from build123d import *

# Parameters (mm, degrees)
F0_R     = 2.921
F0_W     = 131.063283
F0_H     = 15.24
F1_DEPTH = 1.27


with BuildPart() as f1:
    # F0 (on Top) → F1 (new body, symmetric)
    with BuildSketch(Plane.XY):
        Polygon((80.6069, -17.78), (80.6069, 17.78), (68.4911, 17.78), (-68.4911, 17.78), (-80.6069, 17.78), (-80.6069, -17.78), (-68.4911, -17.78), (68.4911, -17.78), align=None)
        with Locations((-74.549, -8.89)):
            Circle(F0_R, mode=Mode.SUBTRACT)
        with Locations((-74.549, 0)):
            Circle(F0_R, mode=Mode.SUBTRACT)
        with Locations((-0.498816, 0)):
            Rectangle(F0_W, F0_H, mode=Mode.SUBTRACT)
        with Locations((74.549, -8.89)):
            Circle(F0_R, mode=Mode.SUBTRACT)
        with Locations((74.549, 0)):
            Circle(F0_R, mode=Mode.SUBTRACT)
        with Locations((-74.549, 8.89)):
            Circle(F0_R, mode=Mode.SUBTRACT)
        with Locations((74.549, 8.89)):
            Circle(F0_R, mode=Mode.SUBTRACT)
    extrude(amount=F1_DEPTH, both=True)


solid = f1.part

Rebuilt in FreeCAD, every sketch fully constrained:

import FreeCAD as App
import Part
import Sketcher

V = App.Vector
Q = App.Units.Quantity


def add_polygon(sketch, points):
    """Adds a closed chain of lines whose ends are joined by coincident constraints."""
    first, n = sketch.GeometryCount, len(points)
    for a, b in zip(points, points[1:] + points[:1]):
        sketch.addGeometry(Part.LineSegment(App.Vector(*a, 0), App.Vector(*b, 0)), False)
    for i in range(n):
        sketch.addConstraint(Sketcher.Constraint("Coincident", first + i, 2, first + (i + 1) % n, 1))

doc = App.newDocument("Part")
body = doc.addObject("PartDesign::Body", "Body")

sketch1 = body.newObject("Sketcher::SketchObject", "Sketch")
sketch1.AttachmentSupport = (doc.getObject("XY_Plane"), [""])
sketch1.MapMode = "FlatFace"
add_polygon(sketch1, [(80.6, -17.8), (80.6, 17.8), (-80.6, 17.8), (-80.6, -17.8)])
sketch1.addGeometry(Part.Circle(V(-74.5, -8.9, 0), V(0, 0, 1), 2.9), False)
sketch1.addGeometry(Part.Circle(V(74.5, -8.9, 0), V(0, 0, 1), 2.9), False)
sketch1.addGeometry(Part.Circle(V(-74.5, 0, 0), V(0, 0, 1), 2.9), False)
add_polygon(sketch1, [(65, -7.6), (-66, -7.6), (-66, 7.6), (65, 7.6)])
sketch1.addGeometry(Part.Circle(V(-74.5, 8.9, 0), V(0, 0, 1), 2.9), False)
sketch1.addGeometry(Part.Circle(V(74.5, 0, 0), V(0, 0, 1), 2.9), False)
sketch1.addGeometry(Part.Circle(V(74.5, 8.9, 0), V(0, 0, 1), 2.9), False)
sketch1.addConstraint([
    Sketcher.Constraint("Vertical", 0),
    Sketcher.Constraint("Horizontal", 1),
    Sketcher.Constraint("Vertical", 2),
    Sketcher.Constraint("Horizontal", 3),
    Sketcher.Constraint("Horizontal", 7),
    Sketcher.Constraint("Vertical", 8),
    Sketcher.Constraint("Horizontal", 9),
    Sketcher.Constraint("Vertical", 10),
    Sketcher.Constraint("Equal", 4, 5),
    Sketcher.Constraint("Equal", 5, 6),
    Sketcher.Constraint("Equal", 6, 11),
    Sketcher.Constraint("Equal", 11, 12),
    Sketcher.Constraint("Equal", 12, 13),
    Sketcher.Constraint("Symmetric", 5, 3, 11, 3, -1, 1),
    Sketcher.Constraint("Symmetric", 6, 3, 12, 3, -1, 1),
    Sketcher.Constraint("Symmetric", 4, 3, 13, 3, -1, 1),
    Sketcher.Constraint("Symmetric", 0, 2, 2, 2, -1, 1),
    Sketcher.Constraint("Symmetric", 4, 3, 5, 3, -2),
    Sketcher.Constraint("PointOnObject", 6, 3, -1),
    Sketcher.Constraint("Vertical", 4, 3, 6, 3),
    Sketcher.Constraint("Diameter", 4, Q("0.23 in")),
    Sketcher.Constraint("DistanceY", 0, 1, 0, 2, Q("1.4 in")),
    Sketcher.Constraint("DistanceY", 8, 1, 8, 2, Q("0.6 in")),
    Sketcher.Constraint("DistanceY", 7, 2, 1, 2, Q("1 in")),
    Sketcher.Constraint("DistanceY", 4, 3, 11, 3, Q("0.7 in")),
    Sketcher.Constraint("DistanceX", 1, 2, 1, 1, Q("6.347 in")),
    Sketcher.Constraint("DistanceX", 4, 3, 5, 3, Q("5.87 in")),
    Sketcher.Constraint("DistanceX", 7, 2, 7, 1, Q("131.063283 mm")),
    Sketcher.Constraint("DistanceX", 7, 2, -1, 1, Q("66.030457 mm")),
])
pad1 = body.newObject("PartDesign::Pad", "Pad")
pad1.Profile = sketch1
pad1.Length = Q("0.1 in")
pad1.Midplane = True

doc.recompute()
